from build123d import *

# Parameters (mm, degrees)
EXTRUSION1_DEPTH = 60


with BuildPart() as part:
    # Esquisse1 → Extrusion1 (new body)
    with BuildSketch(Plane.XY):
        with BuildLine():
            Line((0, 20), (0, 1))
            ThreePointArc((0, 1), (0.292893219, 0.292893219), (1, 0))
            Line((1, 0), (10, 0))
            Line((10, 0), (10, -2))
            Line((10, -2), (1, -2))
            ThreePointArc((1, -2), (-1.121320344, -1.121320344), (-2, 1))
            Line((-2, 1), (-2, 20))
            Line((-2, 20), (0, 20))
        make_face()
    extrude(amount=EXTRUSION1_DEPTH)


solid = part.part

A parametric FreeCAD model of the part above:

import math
import FreeCAD as App
import Part
import Sketcher
Q = App.Units.Quantity

doc = App.newDocument("Part")
body = doc.addObject("PartDesign::Body", "Body")

sketch1 = body.newObject("Sketcher::SketchObject", "Sketch")
sketch1.AttachmentSupport = (doc.getObject("XY_Plane"), [""])
sketch1.MapMode = "FlatFace"
sketch1.addGeometry([
    Part.LineSegment(App.Vector(0, 1, 0), App.Vector(0, 20, 0)),
    Part.LineSegment(App.Vector(0, 20, 0), App.Vector(-2, 20, 0)),
    Part.LineSegment(App.Vector(-2, 20, 0), App.Vector(-2, 1, 0)),
    Part.ArcOfCircle(Part.Circle(App.Vector(1, 1, 0), App.Vector(0, 0, 1), 3), math.radians(180), math.radians(270)),
    Part.LineSegment(App.Vector(1, -2, 0), App.Vector(10, -2, 0)),
    Part.LineSegment(App.Vector(10, -2, 0), App.Vector(10, 0, 0)),
    Part.LineSegment(App.Vector(10, 0, 0), App.Vector(1, 0, 0)),
    Part.ArcOfCircle(Part.Circle(App.Vector(1, 1, 0), App.Vector(0, 0, 1), 1), math.radians(-180), math.radians(-90)),
], False)
sketch1.addConstraint([
    Sketcher.Constraint("Coincident", 0, 2, 1, 1),
    Sketcher.Constraint("Coincident", 1, 2, 2, 1),
    Sketcher.Constraint("Tangent", 2, 2, 3, 1),
    Sketcher.Constraint("Tangent", 3, 2, 4, 1),
    Sketcher.Constraint("Coincident", 4, 2, 5, 1),
    Sketcher.Constraint("Coincident", 5, 2, 6, 1),
    Sketcher.Constraint("Tangent", 6, 2, 7, 2),
    Sketcher.Constraint("Tangent", 7, 1, 0, 1),
    Sketcher.Constraint("Vertical", 0),
    Sketcher.Constraint("Horizontal", 1),
    Sketcher.Constraint("Vertical", 2),
    Sketcher.Constraint("Horizontal", 4),
    Sketcher.Constraint("Vertical", 5),
    Sketcher.Constraint("Horizontal", 6),
    Sketcher.Constraint("Coincident", 7, 3, 3, 3),
    Sketcher.Constraint("PointOnObject", 0, 2, -2),
    Sketcher.Constraint("PointOnObject", 5, 2, -1),
    Sketcher.Constraint("Radius", 3, Q("3 mm")),
    Sketcher.Constraint("Radius", 7, Q("1 mm")),
    Sketcher.Constraint("DistanceX", 4, 1, 4, 2, Q("9 mm")),
    Sketcher.Constraint("DistanceY", 0, 1, 0, 2, Q("19 mm")),
])
pad1 = body.newObject("PartDesign::Pad", "Pad")
pad1.Profile = sketch1
pad1.Length = 60

doc.recompute()
